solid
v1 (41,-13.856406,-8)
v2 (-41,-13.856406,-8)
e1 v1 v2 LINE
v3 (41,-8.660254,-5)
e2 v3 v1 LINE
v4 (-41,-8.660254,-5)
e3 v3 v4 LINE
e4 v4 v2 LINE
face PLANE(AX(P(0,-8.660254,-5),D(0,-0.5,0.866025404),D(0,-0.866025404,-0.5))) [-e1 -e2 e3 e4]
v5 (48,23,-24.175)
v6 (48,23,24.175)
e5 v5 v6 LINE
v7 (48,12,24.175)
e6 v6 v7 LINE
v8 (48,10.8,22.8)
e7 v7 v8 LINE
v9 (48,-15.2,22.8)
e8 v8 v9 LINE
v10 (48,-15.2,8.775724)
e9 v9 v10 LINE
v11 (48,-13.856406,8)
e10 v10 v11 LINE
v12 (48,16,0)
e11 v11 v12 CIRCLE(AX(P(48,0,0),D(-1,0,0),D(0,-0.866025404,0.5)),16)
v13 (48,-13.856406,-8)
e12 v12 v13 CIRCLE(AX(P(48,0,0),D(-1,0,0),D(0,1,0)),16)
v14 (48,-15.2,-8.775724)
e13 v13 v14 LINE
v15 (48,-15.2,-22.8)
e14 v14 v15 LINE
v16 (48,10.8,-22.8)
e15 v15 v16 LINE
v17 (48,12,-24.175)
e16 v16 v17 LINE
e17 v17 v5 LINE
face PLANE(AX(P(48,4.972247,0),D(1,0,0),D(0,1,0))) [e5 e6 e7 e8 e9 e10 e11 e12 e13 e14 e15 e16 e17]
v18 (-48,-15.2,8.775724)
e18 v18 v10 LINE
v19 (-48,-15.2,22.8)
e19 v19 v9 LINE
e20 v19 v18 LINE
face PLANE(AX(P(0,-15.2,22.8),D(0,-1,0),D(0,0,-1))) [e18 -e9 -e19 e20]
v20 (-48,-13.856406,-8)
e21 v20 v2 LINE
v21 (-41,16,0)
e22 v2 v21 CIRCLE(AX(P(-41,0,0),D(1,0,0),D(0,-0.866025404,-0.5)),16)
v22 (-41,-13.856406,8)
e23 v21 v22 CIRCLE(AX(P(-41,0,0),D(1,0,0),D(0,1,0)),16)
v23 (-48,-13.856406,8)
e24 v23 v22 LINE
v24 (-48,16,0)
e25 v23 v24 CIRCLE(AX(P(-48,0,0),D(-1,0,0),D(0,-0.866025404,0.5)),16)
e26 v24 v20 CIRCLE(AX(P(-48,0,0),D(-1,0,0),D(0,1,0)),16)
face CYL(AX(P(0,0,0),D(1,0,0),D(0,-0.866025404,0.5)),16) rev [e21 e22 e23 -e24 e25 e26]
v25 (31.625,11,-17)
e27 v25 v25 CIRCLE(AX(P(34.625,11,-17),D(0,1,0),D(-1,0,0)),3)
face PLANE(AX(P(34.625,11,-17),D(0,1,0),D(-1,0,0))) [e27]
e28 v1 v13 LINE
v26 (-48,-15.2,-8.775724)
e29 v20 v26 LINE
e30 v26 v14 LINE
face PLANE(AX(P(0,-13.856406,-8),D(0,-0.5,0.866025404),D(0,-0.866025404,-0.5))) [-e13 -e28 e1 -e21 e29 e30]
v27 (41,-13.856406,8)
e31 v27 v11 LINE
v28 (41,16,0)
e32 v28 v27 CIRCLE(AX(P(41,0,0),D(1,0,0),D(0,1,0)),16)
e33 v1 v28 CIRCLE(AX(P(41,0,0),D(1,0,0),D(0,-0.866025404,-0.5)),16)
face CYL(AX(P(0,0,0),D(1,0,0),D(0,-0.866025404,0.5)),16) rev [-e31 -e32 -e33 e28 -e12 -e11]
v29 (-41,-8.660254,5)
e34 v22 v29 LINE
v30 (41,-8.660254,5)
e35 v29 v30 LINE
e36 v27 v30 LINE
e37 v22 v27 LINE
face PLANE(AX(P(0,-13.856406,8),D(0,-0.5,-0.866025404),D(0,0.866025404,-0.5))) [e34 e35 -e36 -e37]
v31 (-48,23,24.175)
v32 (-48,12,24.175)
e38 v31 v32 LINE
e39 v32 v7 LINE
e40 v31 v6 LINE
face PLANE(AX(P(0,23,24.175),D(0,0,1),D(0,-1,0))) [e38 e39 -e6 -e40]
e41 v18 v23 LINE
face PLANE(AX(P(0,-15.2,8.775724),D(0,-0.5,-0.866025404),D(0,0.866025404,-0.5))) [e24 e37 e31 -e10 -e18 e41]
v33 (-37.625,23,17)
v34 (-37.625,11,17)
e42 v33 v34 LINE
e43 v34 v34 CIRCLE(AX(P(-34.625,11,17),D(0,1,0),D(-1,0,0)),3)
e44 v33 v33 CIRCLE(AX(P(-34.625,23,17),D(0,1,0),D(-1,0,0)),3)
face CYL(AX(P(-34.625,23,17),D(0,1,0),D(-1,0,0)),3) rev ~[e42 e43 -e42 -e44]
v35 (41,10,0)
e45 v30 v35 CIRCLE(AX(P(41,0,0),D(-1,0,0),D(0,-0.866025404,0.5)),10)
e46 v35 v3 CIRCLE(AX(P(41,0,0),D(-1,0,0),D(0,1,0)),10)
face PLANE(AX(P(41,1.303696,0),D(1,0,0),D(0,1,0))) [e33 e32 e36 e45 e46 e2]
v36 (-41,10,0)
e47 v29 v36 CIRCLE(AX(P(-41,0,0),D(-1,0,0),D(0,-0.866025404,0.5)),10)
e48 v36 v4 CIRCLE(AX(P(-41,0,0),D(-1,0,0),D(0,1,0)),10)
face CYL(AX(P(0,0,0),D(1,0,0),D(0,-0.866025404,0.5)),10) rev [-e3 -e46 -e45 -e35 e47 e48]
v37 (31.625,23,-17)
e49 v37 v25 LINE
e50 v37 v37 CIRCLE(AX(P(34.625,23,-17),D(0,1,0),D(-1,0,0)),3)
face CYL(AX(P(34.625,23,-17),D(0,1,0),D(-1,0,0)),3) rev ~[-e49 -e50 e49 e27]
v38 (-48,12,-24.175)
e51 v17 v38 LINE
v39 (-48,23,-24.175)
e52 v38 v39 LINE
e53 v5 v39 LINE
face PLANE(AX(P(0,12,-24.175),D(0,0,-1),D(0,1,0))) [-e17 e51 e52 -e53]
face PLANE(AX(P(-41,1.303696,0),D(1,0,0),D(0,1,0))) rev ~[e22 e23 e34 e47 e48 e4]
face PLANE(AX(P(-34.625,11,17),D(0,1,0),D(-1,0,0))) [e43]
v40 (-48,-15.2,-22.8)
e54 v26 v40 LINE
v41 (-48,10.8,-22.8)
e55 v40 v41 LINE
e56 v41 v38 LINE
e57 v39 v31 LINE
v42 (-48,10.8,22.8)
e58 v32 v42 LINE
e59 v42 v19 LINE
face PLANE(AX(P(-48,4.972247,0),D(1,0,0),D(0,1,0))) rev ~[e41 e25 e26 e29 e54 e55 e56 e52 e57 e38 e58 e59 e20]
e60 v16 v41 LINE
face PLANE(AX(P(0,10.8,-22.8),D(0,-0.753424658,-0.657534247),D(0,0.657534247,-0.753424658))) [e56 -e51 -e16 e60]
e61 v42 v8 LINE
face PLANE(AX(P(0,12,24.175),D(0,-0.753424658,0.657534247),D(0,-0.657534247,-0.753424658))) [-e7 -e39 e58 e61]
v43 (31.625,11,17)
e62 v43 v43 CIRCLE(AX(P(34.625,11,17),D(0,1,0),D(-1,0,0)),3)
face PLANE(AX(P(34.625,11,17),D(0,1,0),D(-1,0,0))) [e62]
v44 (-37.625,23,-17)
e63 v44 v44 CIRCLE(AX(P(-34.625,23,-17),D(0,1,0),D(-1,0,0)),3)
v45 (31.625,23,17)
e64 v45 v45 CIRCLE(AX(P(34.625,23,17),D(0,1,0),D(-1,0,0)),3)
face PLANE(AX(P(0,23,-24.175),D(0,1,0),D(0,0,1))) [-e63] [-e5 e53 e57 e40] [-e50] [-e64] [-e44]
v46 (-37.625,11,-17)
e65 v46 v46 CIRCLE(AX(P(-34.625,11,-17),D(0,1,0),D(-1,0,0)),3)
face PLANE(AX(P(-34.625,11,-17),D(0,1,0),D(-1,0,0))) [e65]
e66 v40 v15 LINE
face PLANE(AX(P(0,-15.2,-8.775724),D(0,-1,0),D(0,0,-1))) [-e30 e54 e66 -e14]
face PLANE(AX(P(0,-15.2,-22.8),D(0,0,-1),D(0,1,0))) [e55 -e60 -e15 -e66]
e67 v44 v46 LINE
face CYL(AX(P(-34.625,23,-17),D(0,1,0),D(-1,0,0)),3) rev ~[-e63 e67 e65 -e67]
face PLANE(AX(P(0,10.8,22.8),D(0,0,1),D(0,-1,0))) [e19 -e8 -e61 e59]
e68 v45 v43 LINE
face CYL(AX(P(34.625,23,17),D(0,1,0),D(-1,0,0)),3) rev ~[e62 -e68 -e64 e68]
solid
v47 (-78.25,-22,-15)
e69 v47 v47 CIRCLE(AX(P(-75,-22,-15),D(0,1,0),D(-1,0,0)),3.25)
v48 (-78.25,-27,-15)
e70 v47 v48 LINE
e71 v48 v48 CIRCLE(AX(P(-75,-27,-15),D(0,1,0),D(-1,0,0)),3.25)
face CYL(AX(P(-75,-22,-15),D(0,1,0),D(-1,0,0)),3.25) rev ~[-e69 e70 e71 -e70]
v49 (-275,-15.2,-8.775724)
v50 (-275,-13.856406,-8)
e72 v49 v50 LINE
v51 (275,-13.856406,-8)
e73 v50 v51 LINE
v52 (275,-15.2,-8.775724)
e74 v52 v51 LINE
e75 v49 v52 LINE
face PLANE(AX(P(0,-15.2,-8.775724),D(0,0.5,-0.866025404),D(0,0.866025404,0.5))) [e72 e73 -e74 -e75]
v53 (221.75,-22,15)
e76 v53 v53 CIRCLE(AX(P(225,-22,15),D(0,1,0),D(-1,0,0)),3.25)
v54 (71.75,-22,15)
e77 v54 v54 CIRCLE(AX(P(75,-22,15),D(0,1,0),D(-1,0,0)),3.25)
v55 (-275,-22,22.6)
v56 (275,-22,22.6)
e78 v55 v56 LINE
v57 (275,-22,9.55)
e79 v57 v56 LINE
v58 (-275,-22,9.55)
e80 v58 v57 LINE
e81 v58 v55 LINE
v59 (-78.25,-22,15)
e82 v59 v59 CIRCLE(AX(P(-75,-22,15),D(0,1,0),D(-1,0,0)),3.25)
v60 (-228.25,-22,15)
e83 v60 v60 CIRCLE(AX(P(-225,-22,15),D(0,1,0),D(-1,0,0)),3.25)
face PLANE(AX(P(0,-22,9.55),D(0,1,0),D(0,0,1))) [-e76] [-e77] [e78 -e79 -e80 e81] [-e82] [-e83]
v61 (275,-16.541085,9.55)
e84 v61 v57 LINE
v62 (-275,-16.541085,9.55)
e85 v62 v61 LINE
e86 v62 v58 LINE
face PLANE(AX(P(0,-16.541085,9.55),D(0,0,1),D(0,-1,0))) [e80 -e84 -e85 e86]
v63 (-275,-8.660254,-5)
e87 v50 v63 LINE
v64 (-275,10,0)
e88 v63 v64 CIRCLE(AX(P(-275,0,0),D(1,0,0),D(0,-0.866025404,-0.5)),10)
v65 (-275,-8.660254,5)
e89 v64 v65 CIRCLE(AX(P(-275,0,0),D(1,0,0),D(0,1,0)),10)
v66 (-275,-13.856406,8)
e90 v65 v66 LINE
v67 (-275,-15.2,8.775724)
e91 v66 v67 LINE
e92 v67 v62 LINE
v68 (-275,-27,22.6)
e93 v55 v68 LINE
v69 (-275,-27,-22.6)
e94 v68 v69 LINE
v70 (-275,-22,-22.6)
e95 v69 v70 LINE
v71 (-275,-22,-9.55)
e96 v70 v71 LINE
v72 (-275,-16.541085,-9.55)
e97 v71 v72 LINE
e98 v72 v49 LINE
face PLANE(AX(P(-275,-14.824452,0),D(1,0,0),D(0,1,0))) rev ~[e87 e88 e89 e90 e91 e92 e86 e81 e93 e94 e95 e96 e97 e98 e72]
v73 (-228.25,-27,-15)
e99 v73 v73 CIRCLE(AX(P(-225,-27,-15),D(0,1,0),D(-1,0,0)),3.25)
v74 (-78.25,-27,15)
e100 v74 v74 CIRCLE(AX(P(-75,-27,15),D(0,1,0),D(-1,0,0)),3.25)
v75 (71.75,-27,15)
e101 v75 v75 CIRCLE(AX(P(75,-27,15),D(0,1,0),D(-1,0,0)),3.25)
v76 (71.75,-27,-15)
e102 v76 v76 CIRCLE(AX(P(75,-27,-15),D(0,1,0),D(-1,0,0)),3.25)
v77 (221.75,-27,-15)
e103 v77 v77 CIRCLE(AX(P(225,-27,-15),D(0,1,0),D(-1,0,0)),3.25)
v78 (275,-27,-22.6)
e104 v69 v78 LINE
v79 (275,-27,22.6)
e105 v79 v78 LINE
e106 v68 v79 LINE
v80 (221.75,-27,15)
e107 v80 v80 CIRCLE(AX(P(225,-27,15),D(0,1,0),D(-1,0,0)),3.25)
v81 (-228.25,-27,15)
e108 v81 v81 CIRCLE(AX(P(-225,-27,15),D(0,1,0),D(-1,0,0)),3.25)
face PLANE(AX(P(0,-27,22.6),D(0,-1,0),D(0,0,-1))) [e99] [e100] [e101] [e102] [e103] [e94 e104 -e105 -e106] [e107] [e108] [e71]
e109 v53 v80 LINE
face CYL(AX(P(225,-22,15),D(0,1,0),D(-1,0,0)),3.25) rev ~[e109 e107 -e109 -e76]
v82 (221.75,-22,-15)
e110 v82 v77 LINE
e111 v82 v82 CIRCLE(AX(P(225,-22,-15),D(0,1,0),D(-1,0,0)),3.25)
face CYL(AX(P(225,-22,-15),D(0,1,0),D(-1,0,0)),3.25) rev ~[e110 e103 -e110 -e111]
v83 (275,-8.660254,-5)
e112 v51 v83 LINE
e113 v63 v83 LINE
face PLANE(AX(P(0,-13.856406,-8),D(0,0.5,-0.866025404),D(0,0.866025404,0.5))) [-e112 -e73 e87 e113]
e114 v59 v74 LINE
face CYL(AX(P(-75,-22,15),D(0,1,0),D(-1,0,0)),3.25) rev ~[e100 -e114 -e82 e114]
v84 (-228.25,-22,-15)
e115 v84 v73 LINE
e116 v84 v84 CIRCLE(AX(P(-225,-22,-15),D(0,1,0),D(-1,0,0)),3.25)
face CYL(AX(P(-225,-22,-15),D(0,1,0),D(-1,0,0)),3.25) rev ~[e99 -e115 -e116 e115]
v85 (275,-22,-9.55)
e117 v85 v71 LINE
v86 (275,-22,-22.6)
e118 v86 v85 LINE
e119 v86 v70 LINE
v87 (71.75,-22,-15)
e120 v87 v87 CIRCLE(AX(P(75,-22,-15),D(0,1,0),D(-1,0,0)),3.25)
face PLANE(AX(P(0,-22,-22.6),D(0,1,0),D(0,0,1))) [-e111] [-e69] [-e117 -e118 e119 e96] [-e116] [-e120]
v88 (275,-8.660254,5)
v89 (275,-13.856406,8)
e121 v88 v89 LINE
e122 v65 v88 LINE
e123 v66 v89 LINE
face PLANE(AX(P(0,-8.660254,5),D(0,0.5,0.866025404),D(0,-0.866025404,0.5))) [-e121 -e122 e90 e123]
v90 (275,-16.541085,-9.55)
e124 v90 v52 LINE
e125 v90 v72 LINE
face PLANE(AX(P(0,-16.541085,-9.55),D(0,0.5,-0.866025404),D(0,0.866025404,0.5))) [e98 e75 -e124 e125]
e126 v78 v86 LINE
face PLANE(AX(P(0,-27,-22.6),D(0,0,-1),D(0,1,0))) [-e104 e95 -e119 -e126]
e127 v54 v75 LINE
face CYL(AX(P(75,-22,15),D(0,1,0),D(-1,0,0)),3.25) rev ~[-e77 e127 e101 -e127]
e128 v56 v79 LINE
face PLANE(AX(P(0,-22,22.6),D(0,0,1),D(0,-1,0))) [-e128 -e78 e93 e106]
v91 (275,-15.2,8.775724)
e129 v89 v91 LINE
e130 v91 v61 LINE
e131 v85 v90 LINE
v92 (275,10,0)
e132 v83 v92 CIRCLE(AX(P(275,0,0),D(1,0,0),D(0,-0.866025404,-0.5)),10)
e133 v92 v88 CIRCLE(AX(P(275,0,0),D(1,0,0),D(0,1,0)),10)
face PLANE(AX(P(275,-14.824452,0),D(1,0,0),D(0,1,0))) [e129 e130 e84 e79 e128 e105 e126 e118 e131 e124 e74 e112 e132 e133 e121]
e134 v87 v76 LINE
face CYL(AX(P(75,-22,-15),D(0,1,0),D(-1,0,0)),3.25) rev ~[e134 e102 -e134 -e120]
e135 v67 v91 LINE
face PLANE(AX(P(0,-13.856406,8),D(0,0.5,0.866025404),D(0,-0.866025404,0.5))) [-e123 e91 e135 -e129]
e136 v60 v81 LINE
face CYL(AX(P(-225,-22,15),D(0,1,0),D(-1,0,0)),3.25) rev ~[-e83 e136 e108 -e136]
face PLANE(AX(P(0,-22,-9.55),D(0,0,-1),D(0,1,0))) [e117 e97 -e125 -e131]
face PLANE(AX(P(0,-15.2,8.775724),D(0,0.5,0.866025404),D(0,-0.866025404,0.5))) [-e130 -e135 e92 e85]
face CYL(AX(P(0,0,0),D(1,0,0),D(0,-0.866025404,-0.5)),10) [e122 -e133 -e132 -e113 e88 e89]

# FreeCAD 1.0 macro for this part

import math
import FreeCAD as App
import Part
import Sketcher
from FreeCAD import Vector
Q = App.Units.Quantity

doc = App.newDocument("Part")
body = doc.addObject("PartDesign::Body", "Body")

sketch1 = doc.addObject("Sketcher::SketchObject", "Sketch")
body.addObject(sketch1)
sketch1.AttachmentSupport = (doc.YZ_Plane, [""])
sketch1.MapMode = "FlatFace"
sketch1.addGeometry([
    Part.LineSegment(Vector(23, -24.175, 0), Vector(23, 24.175, 0)),
    Part.LineSegment(Vector(23, 24.175, 0), Vector(12, 24.175, 0)),
    Part.LineSegment(Vector(12, 24.175, 0), Vector(10.8, 22.8, 0)),
    Part.LineSegment(Vector(10.8, 22.8, 0), Vector(-15.2, 22.8, 0)),
    Part.LineSegment(Vector(-15.2, 22.8, 0), Vector(-15.2, 8.775724, 0)),
    Part.LineSegment(Vector(-15.2, 8.775724, 0), Vector(-13.856406, 8, 0)),
    Part.ArcOfCircle(Part.Circle(Vector(0, 0, 0), Vector(0, 0, 1), 16), math.radians(0), math.radians(150)),
    Part.ArcOfCircle(Part.Circle(Vector(0, 0, 0), Vector(0, 0, 1), 16), math.radians(-150), math.radians(0)),
    Part.LineSegment(Vector(-13.856406, -8, 0), Vector(-15.2, -8.775724, 0)),
    Part.LineSegment(Vector(-15.2, -8.775724, 0), Vector(-15.2, -22.8, 0)),
    Part.LineSegment(Vector(-15.2, -22.8, 0), Vector(10.8, -22.8, 0)),
    Part.LineSegment(Vector(10.8, -22.8, 0), Vector(12, -24.175, 0)),
    Part.LineSegment(Vector(12, -24.175, 0), Vector(23, -24.175, 0)),
], False)
sketch1.addConstraint([
    Sketcher.Constraint("Coincident", 0, 2, 1, 1),
    Sketcher.Constraint("Coincident", 1, 2, 2, 1),
    Sketcher.Constraint("Coincident", 2, 2, 3, 1),
    Sketcher.Constraint("Coincident", 3, 2, 4, 1),
    Sketcher.Constraint("Coincident", 4, 2, 5, 1),
    Sketcher.Constraint("Coincident", 5, 2, 6, 2),
    Sketcher.Constraint("Tangent", 6, 1, 7, 2),
    Sketcher.Constraint("Coincident", 7, 1, 8, 1),
    Sketcher.Constraint("Coincident", 8, 2, 9, 1),
    Sketcher.Constraint("Coincident", 9, 2, 10, 1),
    Sketcher.Constraint("Coincident", 10, 2, 11, 1),
    Sketcher.Constraint("Coincident", 11, 2, 12, 1),
    Sketcher.Constraint("Coincident", 12, 2, 0, 1),
    Sketcher.Constraint("Vertical", 0),
    Sketcher.Constraint("Horizontal", 1),
    Sketcher.Constraint("Horizontal", 3),
    Sketcher.Constraint("Vertical", 4),
    Sketcher.Constraint("Vertical", 9),
    Sketcher.Constraint("Horizontal", 10),
    Sketcher.Constraint("Horizontal", 12),
    Sketcher.Constraint("Coincident", 6, 3, -1, 1),
    Sketcher.Constraint("Equal", 6, 7),
    Sketcher.Constraint("Symmetric", 4, 2, 8, 2, -1),
    Sketcher.Constraint("Symmetric", 2, 2, 10, 2, -1),
    Sketcher.Constraint("Symmetric", 1, 2, 11, 2, -1),
    Sketcher.Constraint("PointOnObject", 6, 1, -1),
    Sketcher.Constraint("Vertical", 5, 2, 7, 1),
    Sketcher.Constraint("Radius", 6, Q("16 mm")),
    Sketcher.Constraint("DistanceX", 1, 2, 1, 1, Q("11 mm")),
    Sketcher.Constraint("DistanceX", 3, 2, 3, 1, Q("26 mm")),
    Sketcher.Constraint("Angle", 5, Q("-30 deg")),
    Sketcher.Constraint("DistanceX", -1, 1, 0, 2, Q("23 mm")),
    Sketcher.Constraint("DistanceY", -1, 1, 5, 2, Q("8 mm")),
    Sketcher.Constraint("DistanceY", 0, 1, 0, 2, Q("48.35 mm")),
    Sketcher.Constraint("DistanceX", -1, 1, 2, 2, Q("10.8 mm")),
    Sketcher.Constraint("DistanceY", -1, 1, 2, 2, Q("22.8 mm")),
])
pad1 = doc.addObject("PartDesign::Pad", "Pad")
body.addObject(pad1)
pad1.Profile = sketch1
pad1.Length = 96
pad1.Midplane = True

sketch2 = doc.addObject("Sketcher::SketchObject", "Sketch001")
body.addObject(sketch2)
sketch2.AttachmentSupport = (doc.YZ_Plane, [""])
sketch2.MapMode = "FlatFace"
sketch2.addGeometry([
    Part.LineSegment(Vector(-8.660254, -5, 0), Vector(-13.856406, -8, 0)),
    Part.ArcOfCircle(Part.Circle(Vector(0, 0, 0), Vector(0, 0, 1), 16), math.radians(-150), math.radians(0)),
    Part.ArcOfCircle(Part.Circle(Vector(0, 0, 0), Vector(0, 0, 1), 16), math.radians(0), math.radians(150)),
    Part.LineSegment(Vector(-13.856406, 8, 0), Vector(-8.660254, 5, 0)),
    Part.ArcOfCircle(Part.Circle(Vector(0, 0, 0), Vector(0, 0, 1), 10), math.radians(0), math.radians(150)),
    Part.ArcOfCircle(Part.Circle(Vector(0, 0, 0), Vector(0, 0, 1), 10), math.radians(-150), math.radians(0)),
], False)
sketch2.addConstraint([
    Sketcher.Constraint("Coincident", 0, 2, 1, 1),
    Sketcher.Constraint("Tangent", 1, 2, 2, 1),
    Sketcher.Constraint("Coincident", 2, 2, 3, 1),
    Sketcher.Constraint("Coincident", 3, 2, 4, 2),
    Sketcher.Constraint("Tangent", 4, 1, 5, 2),
    Sketcher.Constraint("Coincident", 5, 1, 0, 1),
    Sketcher.Constraint("Coincident", 1, 3, -1, 1),
    Sketcher.Constraint("Coincident", 4, 3, -1, 1),
    Sketcher.Constraint("Equal", 1, 2),
    Sketcher.Constraint("Equal", 4, 5),
    Sketcher.Constraint("PointOnObject", 1, 2, -1),
    Sketcher.Constraint("PointOnObject", 4, 1, -1),
    Sketcher.Constraint("Vertical", 0, 2, 2, 2),
    Sketcher.Constraint("Vertical", 3, 2, 5, 1),
    Sketcher.Constraint("Radius", 1, Q("16 mm")),
    Sketcher.Constraint("Radius", 4, Q("10 mm")),
    Sketcher.Constraint("Angle", 0, Q("-150 deg")),
    Sketcher.Constraint("DistanceY", 0, 2, -1, 1, Q("8 mm")),
])
pad2 = doc.addObject("PartDesign::Pad", "Pad001")
body.addObject(pad2)
pad2.Profile = sketch2
pad2.Length = 82
pad2.Midplane = True

sketch3 = doc.addObject("Sketcher::SketchObject", "Sketch002")
body.addObject(sketch3)
sketch3.AttachmentSupport = (doc.XZ_Plane, [""])
sketch3.MapMode = "FlatFace"
sketch3.AttachmentOffset = App.Placement(Vector(0, 0, -23), App.Rotation())
sketch3.addGeometry([
    Part.Circle(Vector(34.625, 17, 0), Vector(0, 0, 1), 3),
    Part.Circle(Vector(-34.625, 17, 0), Vector(0, 0, 1), 3),
    Part.Circle(Vector(-34.625, -17, 0), Vector(0, 0, 1), 3),
    Part.Circle(Vector(34.625, -17, 0), Vector(0, 0, 1), 3),
], False)
sketch3.addConstraint([
    Sketcher.Constraint("Equal", 0, 1),
    Sketcher.Constraint("Equal", 1, 2),
    Sketcher.Constraint("Equal", 2, 3),
    Sketcher.Constraint("Symmetric", 0, 3, 2, 3, -1, 1),
    Sketcher.Constraint("Symmetric", 1, 3, 3, 3, -1, 1),
    Sketcher.Constraint("Symmetric", 0, 3, 1, 3, -2),
    Sketcher.Constraint("Diameter", 0, Q("6 mm")),
    Sketcher.Constraint("DistanceY", -1, 1, 0, 3, Q("17 mm")),
    Sketcher.Constraint("DistanceX", 1, 3, 0, 3, Q("69.25 mm")),
])
pocket1 = doc.addObject("PartDesign::Pocket", "Pocket")
body.addObject(pocket1)
pocket1.Profile = sketch3
pocket1.Length = 12
pocket1.Reversed = True
body2 = doc.addObject("PartDesign::Body", "Body001")

sketch4 = doc.addObject("Sketcher::SketchObject", "Sketch003")
body2.addObject(sketch4)
sketch4.AttachmentSupport = (doc.getObject("YZ_Plane001"), [""])
sketch4.MapMode = "FlatFace"
sketch4.addGeometry([
    Part.LineSegment(Vector(-16.541085, -9.55, 0), Vector(-15.2, -8.775724, 0)),
    Part.LineSegment(Vector(-15.2, -8.775724, 0), Vector(-13.856406, -8, 0)),
    Part.LineSegment(Vector(-13.856406, -8, 0), Vector(-8.660254, -5, 0)),
    Part.ArcOfCircle(Part.Circle(Vector(0, 0, 0), Vector(0, 0, 1), 10), math.radians(-150), math.radians(0)),
    Part.ArcOfCircle(Part.Circle(Vector(0, 0, 0), Vector(0, 0, 1), 10), math.radians(0), math.radians(150)),
    Part.LineSegment(Vector(-8.660254, 5, 0), Vector(-13.856406, 8, 0)),
    Part.LineSegment(Vector(-13.856406, 8, 0), Vector(-15.2, 8.775724, 0)),
    Part.LineSegment(Vector(-15.2, 8.775724, 0), Vector(-16.541085, 9.55, 0)),
    Part.LineSegment(Vector(-16.541085, 9.55, 0), Vector(-22, 9.55, 0)),
    Part.LineSegment(Vector(-22, 9.55, 0), Vector(-22, 22.6, 0)),
    Part.LineSegment(Vector(-22, 22.6, 0), Vector(-27, 22.6, 0)),
    Part.LineSegment(Vector(-27, 22.6, 0), Vector(-27, -22.6, 0)),
    Part.LineSegment(Vector(-27, -22.6, 0), Vector(-22, -22.6, 0)),
    Part.LineSegment(Vector(-22, -22.6, 0), Vector(-22, -9.55, 0)),
    Part.LineSegment(Vector(-22, -9.55, 0), Vector(-16.541085, -9.55, 0)),
], False)
sketch4.addConstraint([
    Sketcher.Constraint("Coincident", 0, 2, 1, 1),
    Sketcher.Constraint("Coincident", 1, 2, 2, 1),
    Sketcher.Constraint("Coincident", 2, 2, 3, 1),
    Sketcher.Constraint("Tangent", 3, 2, 4, 1),
    Sketcher.Constraint("Coincident", 4, 2, 5, 1),
    Sketcher.Constraint("Coincident", 5, 2, 6, 1),
    Sketcher.Constraint("Coincident", 6, 2, 7, 1),
    Sketcher.Constraint("Coincident", 7, 2, 8, 1),
    Sketcher.Constraint("Coincident", 8, 2, 9, 1),
    Sketcher.Constraint("Coincident", 9, 2, 10, 1),
    Sketcher.Constraint("Coincident", 10, 2, 11, 1),
    Sketcher.Constraint("Coincident", 11, 2, 12, 1),
    Sketcher.Constraint("Coincident", 12, 2, 13, 1),
    Sketcher.Constraint("Coincident", 13, 2, 14, 1),
    Sketcher.Constraint("Coincident", 14, 2, 0, 1),
    Sketcher.Constraint("Horizontal", 8),
    Sketcher.Constraint("Vertical", 9),
    Sketcher.Constraint("Horizontal", 10),
    Sketcher.Constraint("Vertical", 11),
    Sketcher.Constraint("Horizontal", 12),
    Sketcher.Constraint("Vertical", 13),
    Sketcher.Constraint("Horizontal", 14),
    Sketcher.Constraint("Coincident", 3, 3, -1, 1),
    Sketcher.Constraint("Equal", 3, 4),
    Sketcher.Constraint("Symmetric", 1, 2, 5, 2, -1),
    Sketcher.Constraint("Symmetric", 0, 2, 6, 2, -1),
    Sketcher.Constraint("Symmetric", 9, 2, 12, 2, -1),
    Sketcher.Constraint("Symmetric", 7, 2, 14, 2, -1),
    Sketcher.Constraint("PointOnObject", 3, 2, -1),
    Sketcher.Constraint("Parallel", 0, 1),
    Sketcher.Constraint("Parallel", 1, 2),
    Sketcher.Constraint("Parallel", 5, 6),
    Sketcher.Constraint("Radius", 3, Q("10 mm")),
    Sketcher.Constraint("DistanceX", 10, 2, 10, 1, Q("5 mm")),
    Sketcher.Constraint("Angle", 0, Q("30 deg")),
    Sketcher.Constraint("Distance", 2, Q("6 mm")),
    Sketcher.Constraint("DistanceY", 11, 2, 11, 1, Q("45.2 mm")),
    Sketcher.Constraint("DistanceY", 1, 2, -1, 1, Q("8 mm")),
    Sketcher.Constraint("DistanceX", 8, 2, -1, 1, Q("22 mm")),
    Sketcher.Constraint("DistanceY", 9, 1, 9, 2, Q("13.05 mm")),
    Sketcher.Constraint("DistanceX", 0, 2, -1, 1, Q("15.2 mm")),
])
pad3 = doc.addObject("PartDesign::Pad", "Pad002")
body2.addObject(pad3)
pad3.Profile = sketch4
pad3.Length = 550
pad3.Midplane = True

sketch5 = doc.addObject("Sketcher::SketchObject", "Sketch004")
body2.addObject(sketch5)
sketch5.AttachmentSupport = (doc.getObject("XZ_Plane001"), [""])
sketch5.MapMode = "FlatFace"
sketch5.AttachmentOffset = App.Placement(Vector(0, 0, 22), App.Rotation())
sketch5.addGeometry([
    Part.Circle(Vector(225, 15, 0), Vector(0, 0, 1), 3.25),
    Part.Circle(Vector(75, 15, 0), Vector(0, 0, 1), 3.25),
    Part.Circle(Vector(225, -15, 0), Vector(0, 0, 1), 3.25),
    Part.Circle(Vector(75, -15, 0), Vector(0, 0, 1), 3.25),
    Part.Circle(Vector(-75, 15, 0), Vector(0, 0, 1), 3.25),
    Part.Circle(Vector(-225, 15, 0), Vector(0, 0, 1), 3.25),
    Part.Circle(Vector(-225, -15, 0), Vector(0, 0, 1), 3.25),
    Part.Circle(Vector(-75, -15, 0), Vector(0, 0, 1), 3.25),
], False)
sketch5.addConstraint([
    Sketcher.Constraint("Equal", 0, 1),
    Sketcher.Constraint("Equal", 1, 2),
    Sketcher.Constraint("Equal", 2, 3),
    Sketcher.Constraint("Equal", 3, 4),
    Sketcher.Constraint("Equal", 4, 5),
    Sketcher.Constraint("Equal", 5, 6),
    Sketcher.Constraint("Equal", 6, 7),
    Sketcher.Constraint("Symmetric", 3, 3, 4, 3, -1, 1),
    Sketcher.Constraint("Symmetric", 2, 3, 5, 3, -1, 1),
    Sketcher.Constraint("Symmetric", 0, 3, 6, 3, -1, 1),
    Sketcher.Constraint("Symmetric", 1, 3, 7, 3, -1, 1),
    Sketcher.Constraint("Symmetric", 1, 3, 4, 3, -2),
    Sketcher.Constraint("Symmetric", 0, 3, 5, 3, -2),
    Sketcher.Constraint("Horizontal", 0, 3, 1, 3),
    Sketcher.Constraint("Diameter", 0, Q("6.5 mm")),
    Sketcher.Constraint("DistanceX", -1, 1, 0, 3, Q("225 mm")),
    Sketcher.Constraint("DistanceY", -1, 1, 0, 3, Q("15 mm")),
    Sketcher.Constraint("DistanceX", -1, 1, 1, 3, Q("75 mm")),
])
pocket2 = doc.addObject("PartDesign::Pocket", "Pocket001")
body2.addObject(pocket2)
pocket2.Profile = sketch5
pocket2.Length = 25
pocket2.Reversed = True

doc.recompute()
